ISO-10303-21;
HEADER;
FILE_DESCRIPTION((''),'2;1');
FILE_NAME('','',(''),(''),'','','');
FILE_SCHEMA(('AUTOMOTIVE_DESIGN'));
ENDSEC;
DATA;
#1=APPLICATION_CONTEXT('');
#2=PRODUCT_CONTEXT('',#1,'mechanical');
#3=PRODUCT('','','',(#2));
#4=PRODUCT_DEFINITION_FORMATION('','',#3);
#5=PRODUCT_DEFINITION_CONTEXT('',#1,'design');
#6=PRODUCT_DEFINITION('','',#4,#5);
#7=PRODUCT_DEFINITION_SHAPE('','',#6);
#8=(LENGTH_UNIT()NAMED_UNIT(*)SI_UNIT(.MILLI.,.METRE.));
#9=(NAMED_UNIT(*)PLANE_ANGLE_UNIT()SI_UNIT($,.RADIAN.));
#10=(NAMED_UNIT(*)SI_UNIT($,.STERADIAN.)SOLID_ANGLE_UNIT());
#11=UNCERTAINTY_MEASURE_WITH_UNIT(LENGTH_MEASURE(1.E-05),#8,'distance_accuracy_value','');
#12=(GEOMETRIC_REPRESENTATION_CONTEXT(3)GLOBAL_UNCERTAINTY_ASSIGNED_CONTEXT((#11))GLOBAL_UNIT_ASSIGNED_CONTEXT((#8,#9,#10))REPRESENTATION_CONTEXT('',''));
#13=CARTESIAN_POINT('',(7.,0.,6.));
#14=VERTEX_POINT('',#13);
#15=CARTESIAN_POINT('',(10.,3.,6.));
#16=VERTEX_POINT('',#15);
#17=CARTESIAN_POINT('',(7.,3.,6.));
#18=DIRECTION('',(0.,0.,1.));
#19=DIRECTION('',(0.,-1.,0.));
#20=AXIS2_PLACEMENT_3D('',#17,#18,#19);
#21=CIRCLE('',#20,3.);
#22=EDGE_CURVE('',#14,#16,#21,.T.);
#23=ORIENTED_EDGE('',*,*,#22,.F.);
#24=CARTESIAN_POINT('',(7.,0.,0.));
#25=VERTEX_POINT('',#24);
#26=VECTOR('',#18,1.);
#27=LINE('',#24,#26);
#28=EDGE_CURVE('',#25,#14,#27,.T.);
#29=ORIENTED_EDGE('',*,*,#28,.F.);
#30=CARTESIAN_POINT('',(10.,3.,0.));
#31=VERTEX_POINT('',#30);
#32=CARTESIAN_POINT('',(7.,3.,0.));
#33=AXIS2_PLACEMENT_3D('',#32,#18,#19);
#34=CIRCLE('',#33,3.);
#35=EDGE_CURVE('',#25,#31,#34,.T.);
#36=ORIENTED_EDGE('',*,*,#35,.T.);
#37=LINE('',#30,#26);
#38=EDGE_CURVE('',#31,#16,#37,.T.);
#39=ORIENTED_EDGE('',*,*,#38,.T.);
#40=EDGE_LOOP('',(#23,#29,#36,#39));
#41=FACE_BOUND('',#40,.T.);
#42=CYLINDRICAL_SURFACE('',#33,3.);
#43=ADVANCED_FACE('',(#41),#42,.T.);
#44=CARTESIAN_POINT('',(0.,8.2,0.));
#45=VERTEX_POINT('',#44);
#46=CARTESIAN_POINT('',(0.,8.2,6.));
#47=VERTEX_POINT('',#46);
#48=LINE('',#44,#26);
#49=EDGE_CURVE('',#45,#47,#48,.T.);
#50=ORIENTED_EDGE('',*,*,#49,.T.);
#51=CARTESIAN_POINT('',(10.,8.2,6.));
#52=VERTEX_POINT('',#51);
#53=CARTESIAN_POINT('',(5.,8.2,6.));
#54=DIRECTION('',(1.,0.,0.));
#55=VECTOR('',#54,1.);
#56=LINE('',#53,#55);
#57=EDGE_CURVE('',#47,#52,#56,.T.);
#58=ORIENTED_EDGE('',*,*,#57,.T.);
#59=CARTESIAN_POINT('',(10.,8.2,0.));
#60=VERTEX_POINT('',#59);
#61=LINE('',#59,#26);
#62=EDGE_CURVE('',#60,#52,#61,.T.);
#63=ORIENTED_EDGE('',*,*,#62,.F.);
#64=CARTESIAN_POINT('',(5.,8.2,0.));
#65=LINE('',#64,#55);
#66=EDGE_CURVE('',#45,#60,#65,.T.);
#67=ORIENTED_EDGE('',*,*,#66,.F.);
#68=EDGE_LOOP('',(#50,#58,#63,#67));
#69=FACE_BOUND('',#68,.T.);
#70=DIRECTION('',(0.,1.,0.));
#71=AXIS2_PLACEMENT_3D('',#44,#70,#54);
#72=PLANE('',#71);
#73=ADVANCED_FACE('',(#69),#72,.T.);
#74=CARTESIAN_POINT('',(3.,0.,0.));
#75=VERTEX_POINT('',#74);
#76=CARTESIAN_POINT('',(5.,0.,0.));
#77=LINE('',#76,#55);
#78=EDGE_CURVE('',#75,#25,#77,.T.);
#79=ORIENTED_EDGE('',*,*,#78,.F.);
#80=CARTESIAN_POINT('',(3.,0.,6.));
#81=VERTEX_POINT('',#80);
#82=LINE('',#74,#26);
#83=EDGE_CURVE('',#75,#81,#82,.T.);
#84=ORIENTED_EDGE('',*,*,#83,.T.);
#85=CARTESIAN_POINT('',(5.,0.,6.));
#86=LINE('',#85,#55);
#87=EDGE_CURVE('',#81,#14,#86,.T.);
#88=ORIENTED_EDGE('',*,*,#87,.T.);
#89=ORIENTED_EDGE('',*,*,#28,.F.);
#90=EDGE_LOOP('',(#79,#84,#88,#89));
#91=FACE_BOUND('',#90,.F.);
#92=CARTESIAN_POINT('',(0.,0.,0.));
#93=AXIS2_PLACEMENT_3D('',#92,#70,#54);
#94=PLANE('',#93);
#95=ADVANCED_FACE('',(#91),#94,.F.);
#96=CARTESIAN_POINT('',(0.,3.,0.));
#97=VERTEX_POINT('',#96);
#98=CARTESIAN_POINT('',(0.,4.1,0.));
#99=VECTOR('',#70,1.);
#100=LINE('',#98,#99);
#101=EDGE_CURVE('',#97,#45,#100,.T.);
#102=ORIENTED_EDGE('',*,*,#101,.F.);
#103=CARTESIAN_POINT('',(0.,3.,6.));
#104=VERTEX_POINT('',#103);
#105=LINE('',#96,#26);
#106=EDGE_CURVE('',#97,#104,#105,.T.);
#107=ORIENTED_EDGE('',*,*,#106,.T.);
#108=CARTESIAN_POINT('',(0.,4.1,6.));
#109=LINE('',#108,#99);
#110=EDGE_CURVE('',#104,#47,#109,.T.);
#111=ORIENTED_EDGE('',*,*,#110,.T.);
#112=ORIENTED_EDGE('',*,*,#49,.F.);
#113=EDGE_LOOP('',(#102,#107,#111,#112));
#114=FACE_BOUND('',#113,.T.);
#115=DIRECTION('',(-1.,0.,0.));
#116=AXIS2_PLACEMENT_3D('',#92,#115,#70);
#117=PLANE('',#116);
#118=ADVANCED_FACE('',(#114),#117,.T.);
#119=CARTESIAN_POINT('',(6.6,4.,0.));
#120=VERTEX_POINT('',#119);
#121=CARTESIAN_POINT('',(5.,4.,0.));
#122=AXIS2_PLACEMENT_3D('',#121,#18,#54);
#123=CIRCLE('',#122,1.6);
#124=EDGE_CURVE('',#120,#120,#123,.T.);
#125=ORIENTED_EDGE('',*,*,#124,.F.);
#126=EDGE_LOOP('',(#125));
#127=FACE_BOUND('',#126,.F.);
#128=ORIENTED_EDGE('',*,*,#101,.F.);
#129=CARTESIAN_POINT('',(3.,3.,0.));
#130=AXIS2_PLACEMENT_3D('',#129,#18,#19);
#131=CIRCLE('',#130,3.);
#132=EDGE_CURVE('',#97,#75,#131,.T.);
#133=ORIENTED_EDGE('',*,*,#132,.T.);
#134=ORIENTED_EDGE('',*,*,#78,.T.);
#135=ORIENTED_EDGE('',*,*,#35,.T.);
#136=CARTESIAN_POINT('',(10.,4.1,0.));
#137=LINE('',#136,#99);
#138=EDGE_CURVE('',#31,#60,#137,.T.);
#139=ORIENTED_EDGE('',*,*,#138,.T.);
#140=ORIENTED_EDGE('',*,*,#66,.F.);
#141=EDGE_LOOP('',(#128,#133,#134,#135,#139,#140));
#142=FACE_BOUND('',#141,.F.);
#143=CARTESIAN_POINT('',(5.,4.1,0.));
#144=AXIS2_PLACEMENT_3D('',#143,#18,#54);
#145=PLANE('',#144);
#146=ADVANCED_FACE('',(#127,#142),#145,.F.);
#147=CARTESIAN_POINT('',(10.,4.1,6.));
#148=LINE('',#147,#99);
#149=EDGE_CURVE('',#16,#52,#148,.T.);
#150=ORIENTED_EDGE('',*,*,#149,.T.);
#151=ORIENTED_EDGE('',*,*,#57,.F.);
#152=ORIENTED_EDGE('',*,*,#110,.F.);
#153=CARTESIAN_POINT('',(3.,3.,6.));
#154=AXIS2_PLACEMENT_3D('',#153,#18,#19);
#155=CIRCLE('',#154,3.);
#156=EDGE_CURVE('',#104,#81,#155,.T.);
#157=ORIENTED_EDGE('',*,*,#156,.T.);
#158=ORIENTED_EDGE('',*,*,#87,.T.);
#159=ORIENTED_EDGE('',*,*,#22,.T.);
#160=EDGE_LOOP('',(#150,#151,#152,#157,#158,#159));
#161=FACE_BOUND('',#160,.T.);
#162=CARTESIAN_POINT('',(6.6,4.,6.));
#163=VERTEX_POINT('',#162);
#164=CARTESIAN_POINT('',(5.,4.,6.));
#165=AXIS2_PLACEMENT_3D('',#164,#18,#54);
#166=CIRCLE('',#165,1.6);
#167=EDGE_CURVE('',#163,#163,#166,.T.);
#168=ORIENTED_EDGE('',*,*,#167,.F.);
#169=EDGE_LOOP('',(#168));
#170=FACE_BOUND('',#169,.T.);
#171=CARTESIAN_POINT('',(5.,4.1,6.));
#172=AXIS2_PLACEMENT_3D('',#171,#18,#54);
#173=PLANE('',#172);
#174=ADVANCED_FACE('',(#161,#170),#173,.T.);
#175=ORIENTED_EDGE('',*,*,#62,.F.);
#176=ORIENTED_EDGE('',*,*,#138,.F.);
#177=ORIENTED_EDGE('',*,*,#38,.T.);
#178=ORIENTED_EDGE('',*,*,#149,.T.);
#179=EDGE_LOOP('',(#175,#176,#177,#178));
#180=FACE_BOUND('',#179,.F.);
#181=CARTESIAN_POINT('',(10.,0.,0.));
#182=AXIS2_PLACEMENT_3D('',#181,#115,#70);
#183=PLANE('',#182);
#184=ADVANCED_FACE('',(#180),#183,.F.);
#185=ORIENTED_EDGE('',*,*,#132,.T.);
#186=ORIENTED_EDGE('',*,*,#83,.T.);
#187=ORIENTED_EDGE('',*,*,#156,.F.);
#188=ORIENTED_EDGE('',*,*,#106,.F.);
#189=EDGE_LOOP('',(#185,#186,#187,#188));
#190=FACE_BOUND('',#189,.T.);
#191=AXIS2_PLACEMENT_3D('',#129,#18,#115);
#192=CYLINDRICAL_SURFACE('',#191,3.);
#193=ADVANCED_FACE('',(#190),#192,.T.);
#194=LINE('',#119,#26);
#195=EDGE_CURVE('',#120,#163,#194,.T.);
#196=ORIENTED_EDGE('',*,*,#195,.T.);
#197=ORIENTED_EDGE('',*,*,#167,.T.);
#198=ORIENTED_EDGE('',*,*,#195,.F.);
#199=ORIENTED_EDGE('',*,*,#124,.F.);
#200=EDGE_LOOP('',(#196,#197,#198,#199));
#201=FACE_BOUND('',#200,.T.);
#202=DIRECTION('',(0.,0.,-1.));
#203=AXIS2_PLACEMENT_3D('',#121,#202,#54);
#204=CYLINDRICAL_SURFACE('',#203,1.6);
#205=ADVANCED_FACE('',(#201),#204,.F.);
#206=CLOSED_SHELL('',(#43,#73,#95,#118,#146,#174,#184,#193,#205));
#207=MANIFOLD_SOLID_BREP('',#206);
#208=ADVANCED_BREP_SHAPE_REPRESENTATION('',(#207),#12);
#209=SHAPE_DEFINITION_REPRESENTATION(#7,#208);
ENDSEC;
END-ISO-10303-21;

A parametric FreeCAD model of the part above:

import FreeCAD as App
import Part
import Sketcher

V = App.Vector
Q = App.Units.Quantity


def edges_at(feature, points):
    """Names of the edges that pass closest to the given points."""
    edges = feature.Shape.Edges
    near = lambda p: min(range(len(edges)), key=lambda i: edges[i].distToShape(Part.Vertex(*p))[0])
    return sorted({f"Edge{near(p) + 1}" for p in points})


def add_polygon(sketch, points):
    """Adds a closed chain of lines whose ends are joined by coincident constraints."""
    first, n = sketch.GeometryCount, len(points)
    for a, b in zip(points, points[1:] + points[:1]):
        sketch.addGeometry(Part.LineSegment(App.Vector(*a, 0), App.Vector(*b, 0)), False)
    for i in range(n):
        sketch.addConstraint(Sketcher.Constraint("Coincident", first + i, 2, first + (i + 1) % n, 1))

doc = App.newDocument("Part")
body = doc.addObject("PartDesign::Body", "Body")

sketch1 = doc.addObject("Sketcher::SketchObject", "Sketch")
body.addObject(sketch1)
sketch1.AttachmentSupport = (doc.XY_Plane, [""])
sketch1.MapMode = "FlatFace"
sketch1.addGeometry(Part.Circle(V(5, 4, 0), V(0, 0, 1), 1.6), False)
sketch1.addConstraint([
    Sketcher.Constraint("Diameter", 0, Q("3.2 mm")),
    Sketcher.Constraint("DistanceX", -1, 1, 0, 3, Q("5 mm")),
    Sketcher.Constraint("DistanceY", -1, 1, 0, 3, Q("4 mm")),
])
pad1 = doc.addObject("PartDesign::Pad", "Pad")
body.addObject(pad1)
pad1.Profile = sketch1
pad1.Length = 6
body2 = doc.addObject("PartDesign::Body", "Body001")

sketch2 = doc.addObject("Sketcher::SketchObject", "Sketch001")
body2.addObject(sketch2)
sketch2.AttachmentSupport = (doc.getObject("XY_Plane001"), [""])
sketch2.MapMode = "FlatFace"
add_polygon(sketch2, [(0, 8.2), (0, 0), (10, 0), (10, 8.2)])
sketch2.addConstraint([
    Sketcher.Constraint("Vertical", 0),
    Sketcher.Constraint("Horizontal", 1),
    Sketcher.Constraint("Vertical", 2),
    Sketcher.Constraint("Horizontal", 3),
    Sketcher.Constraint("Coincident", 0, 2, -1, 1),
    Sketcher.Constraint("DistanceX", 1, 1, 1, 2, Q("10 mm")),
    Sketcher.Constraint("DistanceY", 0, 2, 0, 1, Q("8.2 mm")),
])
pad2 = doc.addObject("PartDesign::Pad", "Pad001")
body2.addObject(pad2)
pad2.Profile = sketch2
pad2.Length = 6
doc.recompute()

boolean = doc.addObject("PartDesign::Boolean", "Boolean")
body2.addObject(boolean)
boolean.Type = "Cut"
boolean.addObjects([body])
doc.recompute()

fillet = doc.addObject("PartDesign::Fillet", "Fillet")
body2.addObject(fillet)
fillet.Base = (boolean, edges_at(boolean, [(0, 0, 3), (10, 0, 3)]))
fillet.Radius = 3

doc.recompute()
